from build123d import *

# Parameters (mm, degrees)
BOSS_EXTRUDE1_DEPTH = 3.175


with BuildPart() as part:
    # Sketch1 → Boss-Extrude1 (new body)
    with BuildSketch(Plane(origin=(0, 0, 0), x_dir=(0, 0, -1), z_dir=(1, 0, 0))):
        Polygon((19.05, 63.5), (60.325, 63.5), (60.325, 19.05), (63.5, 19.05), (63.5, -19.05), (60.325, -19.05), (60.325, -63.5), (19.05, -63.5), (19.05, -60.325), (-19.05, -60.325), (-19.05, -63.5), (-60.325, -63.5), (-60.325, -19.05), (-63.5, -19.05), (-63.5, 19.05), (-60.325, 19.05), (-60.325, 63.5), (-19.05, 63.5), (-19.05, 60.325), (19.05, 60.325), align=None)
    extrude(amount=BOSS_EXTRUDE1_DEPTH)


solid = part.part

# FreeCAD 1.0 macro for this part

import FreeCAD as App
import Part
import Sketcher
from FreeCAD import Vector
Q = App.Units.Quantity


def add_polygon(sketch, points):
    """Adds a closed chain of lines whose ends are joined by coincident constraints."""
    first, n = sketch.GeometryCount, len(points)
    for a, b in zip(points, points[1:] + points[:1]):
        sketch.addGeometry(Part.LineSegment(App.Vector(*a, 0), App.Vector(*b, 0)), False)
    for i in range(n):
        sketch.addConstraint(Sketcher.Constraint("Coincident", first + i, 2, first + (i + 1) % n, 1))

doc = App.newDocument("Part")
body = doc.addObject("PartDesign::Body", "Body")

# Sketch on YZ plane
sketch1 = body.newObject("Sketcher::SketchObject", "Sketch")
sketch1.AttachmentSupport = (doc.getObject("YZ_Plane"), [""])
sketch1.MapMode = "FlatFace"
add_polygon(sketch1, [(63.5, -60.325), (63.5, -19.05), (60.325, -19.05), (60.325, 19.05), (63.5, 19.05), (63.5, 60.325), (19.05, 60.325), (19.05, 63.5), (-19.05, 63.5), (-19.05, 60.325), (-63.5, 60.325), (-63.5, 19.05), (-60.325, 19.05), (-60.325, -19.05), (-63.5, -19.05), (-63.5, -60.325), (-19.05, -60.325), (-19.05, -63.5), (19.05, -63.5), (19.05, -60.325)])  # lines 0-19
sketch1.addConstraint([
    Sketcher.Constraint("Vertical", 0),
    Sketcher.Constraint("Horizontal", 1),
    Sketcher.Constraint("Vertical", 2),
    Sketcher.Constraint("Horizontal", 3),
    Sketcher.Constraint("Vertical", 4),
    Sketcher.Constraint("Horizontal", 5),
    Sketcher.Constraint("Vertical", 6),
    Sketcher.Constraint("Horizontal", 7),
    Sketcher.Constraint("Vertical", 8),
    Sketcher.Constraint("Horizontal", 9),
    Sketcher.Constraint("Vertical", 10),
    Sketcher.Constraint("Horizontal", 11),
    Sketcher.Constraint("Vertical", 12),
    Sketcher.Constraint("Horizontal", 13),
    Sketcher.Constraint("Vertical", 14),
    Sketcher.Constraint("Horizontal", 15),
    Sketcher.Constraint("Vertical", 16),
    Sketcher.Constraint("Horizontal", 17),
    Sketcher.Constraint("Vertical", 18),
    Sketcher.Constraint("Horizontal", 19),
    Sketcher.Constraint("Symmetric", 0, 2, 10, 2, -1, 1),
    Sketcher.Constraint("Symmetric", 2, 2, 12, 2, -1, 1),
    Sketcher.Constraint("Symmetric", 4, 2, 14, 2, -1, 1),
    Sketcher.Constraint("Symmetric", 6, 2, 16, 2, -1, 1),
    Sketcher.Constraint("Symmetric", 8, 2, 18, 2, -1, 1),
    Sketcher.Constraint("Symmetric", 5, 2, 8, 2, -2),
    Sketcher.Constraint("Symmetric", 3, 2, 10, 2, -2),
    Sketcher.Constraint("Equal", 17, 2),
    Sketcher.Constraint("Equal", 13, 6),
    Sketcher.Constraint("DistanceX", 7, 2, 7, 1, Q("1.5 in")),
    Sketcher.Constraint("DistanceX", 9, 2, 4, 2, Q("5 in")),
    Sketcher.Constraint("DistanceY", -1, 1, 6, 2, Q("2.5 in")),
    Sketcher.Constraint("DistanceX", 1, 2, 1, 1, Q("0.125 in")),
])
pad1 = body.newObject("PartDesign::Pad", "Pad")
pad1.Profile = sketch1
pad1.Length = Q("0.125 in")

doc.recompute()
